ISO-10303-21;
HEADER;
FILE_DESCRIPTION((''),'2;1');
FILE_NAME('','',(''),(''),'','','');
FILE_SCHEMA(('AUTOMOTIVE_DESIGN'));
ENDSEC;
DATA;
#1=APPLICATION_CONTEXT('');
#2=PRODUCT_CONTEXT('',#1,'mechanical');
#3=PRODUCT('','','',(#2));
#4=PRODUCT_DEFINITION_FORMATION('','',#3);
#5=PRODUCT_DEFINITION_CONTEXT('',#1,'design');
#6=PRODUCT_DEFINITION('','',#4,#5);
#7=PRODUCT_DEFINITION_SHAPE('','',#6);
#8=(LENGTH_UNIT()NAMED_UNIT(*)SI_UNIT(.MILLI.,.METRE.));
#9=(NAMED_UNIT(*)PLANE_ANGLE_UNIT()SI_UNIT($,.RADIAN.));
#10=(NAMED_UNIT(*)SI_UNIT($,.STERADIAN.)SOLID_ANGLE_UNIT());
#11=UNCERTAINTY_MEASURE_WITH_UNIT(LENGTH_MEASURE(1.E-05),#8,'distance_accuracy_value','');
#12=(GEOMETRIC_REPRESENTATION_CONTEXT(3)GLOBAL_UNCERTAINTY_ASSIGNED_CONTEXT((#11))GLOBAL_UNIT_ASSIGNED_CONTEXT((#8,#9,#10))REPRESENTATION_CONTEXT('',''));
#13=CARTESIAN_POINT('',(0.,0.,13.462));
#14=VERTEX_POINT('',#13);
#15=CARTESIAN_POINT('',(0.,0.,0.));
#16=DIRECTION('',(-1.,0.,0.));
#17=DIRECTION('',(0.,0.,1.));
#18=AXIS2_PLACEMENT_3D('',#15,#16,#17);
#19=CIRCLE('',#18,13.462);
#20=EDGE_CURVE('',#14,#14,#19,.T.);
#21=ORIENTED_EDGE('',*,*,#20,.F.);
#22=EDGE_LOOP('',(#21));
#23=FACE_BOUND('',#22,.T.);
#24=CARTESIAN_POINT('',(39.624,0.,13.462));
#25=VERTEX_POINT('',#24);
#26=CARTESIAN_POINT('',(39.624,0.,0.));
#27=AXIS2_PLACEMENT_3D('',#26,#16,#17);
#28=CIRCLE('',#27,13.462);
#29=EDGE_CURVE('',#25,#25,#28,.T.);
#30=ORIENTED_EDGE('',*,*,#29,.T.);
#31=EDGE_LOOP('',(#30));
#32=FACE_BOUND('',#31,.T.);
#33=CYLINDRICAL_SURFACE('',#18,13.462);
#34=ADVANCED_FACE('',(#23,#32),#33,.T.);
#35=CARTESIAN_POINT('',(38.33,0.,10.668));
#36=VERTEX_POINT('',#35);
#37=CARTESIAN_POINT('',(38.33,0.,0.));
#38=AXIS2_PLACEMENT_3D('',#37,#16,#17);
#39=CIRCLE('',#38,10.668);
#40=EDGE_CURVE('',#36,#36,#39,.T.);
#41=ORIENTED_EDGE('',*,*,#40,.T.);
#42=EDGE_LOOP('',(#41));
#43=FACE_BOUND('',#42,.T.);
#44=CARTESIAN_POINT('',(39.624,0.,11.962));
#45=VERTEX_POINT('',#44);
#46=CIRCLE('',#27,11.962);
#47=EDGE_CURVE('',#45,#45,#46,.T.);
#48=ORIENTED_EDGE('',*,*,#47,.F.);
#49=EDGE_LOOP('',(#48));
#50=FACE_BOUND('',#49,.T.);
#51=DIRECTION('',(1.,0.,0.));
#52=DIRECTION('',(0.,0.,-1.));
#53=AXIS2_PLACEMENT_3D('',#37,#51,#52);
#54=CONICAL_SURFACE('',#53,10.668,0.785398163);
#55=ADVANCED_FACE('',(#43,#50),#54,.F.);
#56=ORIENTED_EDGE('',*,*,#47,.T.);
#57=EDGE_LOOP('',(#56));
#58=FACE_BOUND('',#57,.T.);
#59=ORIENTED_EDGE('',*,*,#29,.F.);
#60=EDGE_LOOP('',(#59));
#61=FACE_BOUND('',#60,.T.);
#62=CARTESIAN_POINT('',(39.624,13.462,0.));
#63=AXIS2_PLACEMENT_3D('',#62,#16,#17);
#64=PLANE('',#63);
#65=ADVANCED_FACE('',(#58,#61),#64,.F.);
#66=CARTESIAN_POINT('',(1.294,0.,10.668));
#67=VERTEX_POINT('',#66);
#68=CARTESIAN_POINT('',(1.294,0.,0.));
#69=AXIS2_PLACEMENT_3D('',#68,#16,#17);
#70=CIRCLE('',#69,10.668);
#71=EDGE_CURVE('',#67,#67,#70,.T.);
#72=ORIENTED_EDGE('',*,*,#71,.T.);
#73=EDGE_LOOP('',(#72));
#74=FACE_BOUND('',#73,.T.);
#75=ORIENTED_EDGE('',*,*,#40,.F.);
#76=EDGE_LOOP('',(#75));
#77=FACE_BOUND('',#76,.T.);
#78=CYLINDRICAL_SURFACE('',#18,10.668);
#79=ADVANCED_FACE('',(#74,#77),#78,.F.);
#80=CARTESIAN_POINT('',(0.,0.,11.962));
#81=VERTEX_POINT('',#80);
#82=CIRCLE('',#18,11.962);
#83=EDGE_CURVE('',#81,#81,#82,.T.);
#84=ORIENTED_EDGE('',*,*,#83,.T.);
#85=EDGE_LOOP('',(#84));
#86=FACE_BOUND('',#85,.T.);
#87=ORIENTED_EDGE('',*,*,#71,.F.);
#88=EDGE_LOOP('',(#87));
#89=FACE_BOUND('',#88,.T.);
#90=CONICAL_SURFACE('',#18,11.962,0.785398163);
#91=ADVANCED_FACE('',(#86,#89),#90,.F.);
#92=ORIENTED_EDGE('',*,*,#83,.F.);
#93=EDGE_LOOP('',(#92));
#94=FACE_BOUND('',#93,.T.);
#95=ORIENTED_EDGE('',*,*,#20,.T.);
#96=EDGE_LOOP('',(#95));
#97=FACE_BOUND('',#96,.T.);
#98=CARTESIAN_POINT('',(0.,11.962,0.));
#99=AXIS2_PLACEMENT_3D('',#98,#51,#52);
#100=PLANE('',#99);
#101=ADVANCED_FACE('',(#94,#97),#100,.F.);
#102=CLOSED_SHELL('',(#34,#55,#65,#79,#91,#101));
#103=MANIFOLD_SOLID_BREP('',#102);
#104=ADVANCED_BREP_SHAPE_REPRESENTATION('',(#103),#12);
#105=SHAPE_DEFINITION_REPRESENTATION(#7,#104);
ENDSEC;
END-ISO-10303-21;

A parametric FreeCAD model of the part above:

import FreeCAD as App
import Part
import Sketcher

V = App.Vector
Q = App.Units.Quantity

doc = App.newDocument("Part")
body = doc.addObject("PartDesign::Body", "Body")

sketch1 = doc.addObject("Sketcher::SketchObject", "Sketch")
body.addObject(sketch1)
sketch1.AttachmentSupport = (doc.XY_Plane, [""])
sketch1.MapMode = "FlatFace"
sketch1.addGeometry([
    Part.LineSegment(V(39.6, 13.5, 0), V(0, 13.5, 0)),
    Part.LineSegment(V(0, 13.5, 0), V(0, 12, 0)),
    Part.LineSegment(V(0, 12, 0), V(1.3, 10.7, 0)),
    Part.LineSegment(V(1.3, 10.7, 0), V(38.3, 10.7, 0)),
    Part.LineSegment(V(38.3, 10.7, 0), V(39.6, 12, 0)),
    Part.LineSegment(V(39.6, 12, 0), V(39.6, 13.5, 0)),
], False)
sketch1.addConstraint([
    Sketcher.Constraint("Coincident", 0, 2, 1, 1),
    Sketcher.Constraint("Coincident", 1, 2, 2, 1),
    Sketcher.Constraint("Coincident", 2, 2, 3, 1),
    Sketcher.Constraint("Coincident", 3, 2, 4, 1),
    Sketcher.Constraint("Coincident", 4, 2, 5, 1),
    Sketcher.Constraint("Coincident", 5, 2, 0, 1),
    Sketcher.Constraint("Horizontal", 0),
    Sketcher.Constraint("Vertical", 1),
    Sketcher.Constraint("Horizontal", 3),
    Sketcher.Constraint("Vertical", 5),
    Sketcher.Constraint("PointOnObject", 0, 2, -2),
    Sketcher.Constraint("Perpendicular", 2, 4),
    Sketcher.Constraint("Horizontal", 1, 2, 4, 2),
    Sketcher.Constraint("Equal", 2, 4),
    Sketcher.Constraint("DistanceY", 1, 2, 1, 1, Q("1.5 mm")),
    Sketcher.Constraint("DistanceX", 0, 2, 0, 1, Q("39.624 mm")),
    Sketcher.Constraint("DistanceX", 3, 1, 3, 2, Q("37.036 mm")),
    Sketcher.Constraint("DistanceY", -1, 1, 0, 2, Q("13.462 mm")),
])
revolution = doc.addObject("PartDesign::Revolution", "Revolution")
body.addObject(revolution)
revolution.Profile = sketch1
revolution.ReferenceAxis = (sketch1, ["H_Axis"])
revolution.Angle = 360

doc.recompute()
